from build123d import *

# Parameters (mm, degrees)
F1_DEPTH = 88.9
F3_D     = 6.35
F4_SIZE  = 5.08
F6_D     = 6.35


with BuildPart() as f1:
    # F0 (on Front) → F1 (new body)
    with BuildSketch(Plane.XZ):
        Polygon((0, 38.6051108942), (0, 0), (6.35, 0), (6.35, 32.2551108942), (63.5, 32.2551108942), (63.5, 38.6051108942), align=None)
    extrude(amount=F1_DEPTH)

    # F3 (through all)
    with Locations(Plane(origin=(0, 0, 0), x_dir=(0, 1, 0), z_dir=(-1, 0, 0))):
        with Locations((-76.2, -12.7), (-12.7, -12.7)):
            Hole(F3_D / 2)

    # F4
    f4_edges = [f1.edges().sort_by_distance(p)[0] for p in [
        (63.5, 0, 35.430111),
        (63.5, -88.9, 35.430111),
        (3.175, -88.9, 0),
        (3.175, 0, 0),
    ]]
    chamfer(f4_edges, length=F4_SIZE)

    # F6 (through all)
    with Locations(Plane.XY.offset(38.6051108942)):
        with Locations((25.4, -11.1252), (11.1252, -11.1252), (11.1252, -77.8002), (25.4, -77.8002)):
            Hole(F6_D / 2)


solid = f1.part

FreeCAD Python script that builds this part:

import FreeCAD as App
import Part
import Sketcher
Q = App.Units.Quantity


def edges_at(feature, points):
    """Names of the edges that pass closest to the given points."""
    edges = feature.Shape.Edges
    near = lambda p: min(range(len(edges)), key=lambda i: edges[i].distToShape(Part.Vertex(*p))[0])
    return sorted({f"Edge{near(p) + 1}" for p in points})


def add_polygon(sketch, points):
    """Adds a closed chain of lines whose ends are joined by coincident constraints."""
    first, n = sketch.GeometryCount, len(points)
    for a, b in zip(points, points[1:] + points[:1]):
        sketch.addGeometry(Part.LineSegment(App.Vector(*a, 0), App.Vector(*b, 0)), False)
    for i in range(n):
        sketch.addConstraint(Sketcher.Constraint("Coincident", first + i, 2, first + (i + 1) % n, 1))

doc = App.newDocument("Part")
body = doc.addObject("PartDesign::Body", "Body")

sketch1 = doc.addObject("Sketcher::SketchObject", "Sketch")
body.addObject(sketch1)
sketch1.AttachmentSupport = (doc.XZ_Plane, [""])
sketch1.MapMode = "FlatFace"
add_polygon(sketch1, [(0, 38.605111), (0, 0), (6.35, 0), (6.35, 32.255111), (63.5, 32.255111), (63.5, 38.605111)])
sketch1.addConstraint([
    Sketcher.Constraint("Vertical", 0),
    Sketcher.Constraint("Horizontal", 1),
    Sketcher.Constraint("Vertical", 2),
    Sketcher.Constraint("Horizontal", 3),
    Sketcher.Constraint("Vertical", 4),
    Sketcher.Constraint("Horizontal", 5),
    Sketcher.Constraint("Coincident", 0, 2, -1, 1),
    Sketcher.Constraint("Equal", 1, 4),
    Sketcher.Constraint("DistanceX", 5, 2, 5, 1, Q("2.5 in")),
    Sketcher.Constraint("DistanceX", 1, 1, 1, 2, Q("0.25 in")),
    Sketcher.Constraint("DistanceY", 0, 2, 0, 1, Q("38.605111 mm")),
])
pad1 = doc.addObject("PartDesign::Pad", "Pad")
body.addObject(pad1)
pad1.Profile = sketch1
pad1.Length = Q("3.5 in")

sketch2 = doc.addObject("Sketcher::SketchObject", "Sketch001")
body.addObject(sketch2)
sketch2.AttachmentSupport = (doc.YZ_Plane, [""])
sketch2.MapMode = "FlatFace"
sketch2.addGeometry([
    Part.Circle(App.Vector(-76.2, 12.7, 0), App.Vector(0, 0, 1), 3.175),
    Part.Circle(App.Vector(-12.7, 12.7, 0), App.Vector(0, 0, 1), 3.175),
], False)
sketch2.addConstraint([
    Sketcher.Constraint("Equal", 0, 1),
    Sketcher.Constraint("Horizontal", 0, 3, 1, 3),
    Sketcher.Constraint("Diameter", 0, Q("0.25 in")),
    Sketcher.Constraint("DistanceX", 0, 3, -1, 1, Q("3 in")),
    Sketcher.Constraint("DistanceY", -1, 1, 0, 3, Q("0.5 in")),
    Sketcher.Constraint("DistanceX", 1, 3, -1, 1, Q("0.5 in")),
])
doc.recompute()
hole = doc.addObject("PartDesign::Hole", "Hole")
body.addObject(hole)
hole.Profile = sketch2
hole.ThreadType = "None"
hole.Diameter = Q("0.25 in")
hole.DepthType = "ThroughAll"
hole.Reversed = True
doc.recompute()

chamfer = doc.addObject("PartDesign::Chamfer", "Chamfer")
body.addObject(chamfer)
chamfer.Base = (hole, edges_at(hole, [
    (63.5, 0, 35.43),
    (63.5, -88.9, 35.43),
    (3.175, -88.9, 0),
    (3.175, 0, 0),
]))
chamfer.Size = Q("0.2 in")

sketch3 = doc.addObject("Sketcher::SketchObject", "Sketch002")
body.addObject(sketch3)
sketch3.AttachmentSupport = (doc.XY_Plane, [""])
sketch3.MapMode = "FlatFace"
sketch3.AttachmentOffset = App.Placement(App.Vector(0, 0, 38.605111), App.Rotation())
sketch3.addGeometry([
    Part.Circle(App.Vector(25.4, -11.1252, 0), App.Vector(0, 0, 1), 3.175),
    Part.Circle(App.Vector(11.1252, -11.1252, 0), App.Vector(0, 0, 1), 3.175),
    Part.Circle(App.Vector(11.1252, -77.8002, 0), App.Vector(0, 0, 1), 3.175),
    Part.Circle(App.Vector(25.4, -77.8002, 0), App.Vector(0, 0, 1), 3.175),
], False)
sketch3.addConstraint([
    Sketcher.Constraint("Equal", 0, 1),
    Sketcher.Constraint("Equal", 1, 2),
    Sketcher.Constraint("Equal", 2, 3),
    Sketcher.Constraint("Horizontal", 0, 3, 1, 3),
    Sketcher.Constraint("Horizontal", 2, 3, 3, 3),
    Sketcher.Constraint("Vertical", 1, 3, 2, 3),
    Sketcher.Constraint("Vertical", 0, 3, 3, 3),
    Sketcher.Constraint("Diameter", 0, Q("0.25 in")),
    Sketcher.Constraint("DistanceX", -1, 1, 0, 3, Q("1 in")),
    Sketcher.Constraint("DistanceY", 0, 3, -1, 1, Q("0.438 in")),
    Sketcher.Constraint("DistanceX", -1, 1, 1, 3, Q("0.438 in")),
    Sketcher.Constraint("DistanceY", 2, 3, -1, 1, Q("3.063 in")),
])
doc.recompute()
hole2 = doc.addObject("PartDesign::Hole", "Hole001")
body.addObject(hole2)
hole2.Profile = sketch3
hole2.ThreadType = "None"
hole2.Diameter = Q("0.25 in")
hole2.DepthType = "ThroughAll"

doc.recompute()
